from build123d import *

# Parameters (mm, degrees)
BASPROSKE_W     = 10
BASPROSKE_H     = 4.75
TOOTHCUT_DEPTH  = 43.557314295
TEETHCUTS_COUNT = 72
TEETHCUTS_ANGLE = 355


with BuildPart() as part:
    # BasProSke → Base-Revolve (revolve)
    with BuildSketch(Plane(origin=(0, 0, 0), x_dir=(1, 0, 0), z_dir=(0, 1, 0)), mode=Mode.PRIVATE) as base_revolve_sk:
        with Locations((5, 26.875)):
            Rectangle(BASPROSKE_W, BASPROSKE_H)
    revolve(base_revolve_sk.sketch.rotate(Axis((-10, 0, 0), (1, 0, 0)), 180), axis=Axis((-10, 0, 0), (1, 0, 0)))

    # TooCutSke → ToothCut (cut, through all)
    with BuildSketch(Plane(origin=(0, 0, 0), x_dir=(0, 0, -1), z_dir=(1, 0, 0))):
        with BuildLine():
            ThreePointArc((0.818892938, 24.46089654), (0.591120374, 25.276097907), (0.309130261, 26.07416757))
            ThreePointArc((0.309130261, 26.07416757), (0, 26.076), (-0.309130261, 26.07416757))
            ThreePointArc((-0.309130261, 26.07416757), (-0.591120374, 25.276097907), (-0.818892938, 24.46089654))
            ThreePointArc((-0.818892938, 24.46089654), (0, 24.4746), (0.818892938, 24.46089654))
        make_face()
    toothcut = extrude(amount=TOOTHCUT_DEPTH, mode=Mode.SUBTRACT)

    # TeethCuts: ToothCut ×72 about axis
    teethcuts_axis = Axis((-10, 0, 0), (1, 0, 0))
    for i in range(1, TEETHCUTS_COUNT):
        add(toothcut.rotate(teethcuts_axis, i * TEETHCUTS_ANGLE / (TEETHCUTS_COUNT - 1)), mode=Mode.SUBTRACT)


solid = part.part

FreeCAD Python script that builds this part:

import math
import FreeCAD as App
import Part
import Sketcher
from FreeCAD import Vector


def add_polygon(sketch, points):
    """Adds a closed chain of lines whose ends are joined by coincident constraints."""
    first, n = sketch.GeometryCount, len(points)
    for a, b in zip(points, points[1:] + points[:1]):
        sketch.addGeometry(Part.LineSegment(App.Vector(*a, 0), App.Vector(*b, 0)), False)
    for i in range(n):
        sketch.addConstraint(Sketcher.Constraint("Coincident", first + i, 2, first + (i + 1) % n, 1))

doc = App.newDocument("Part")
body = doc.addObject("PartDesign::Body", "Body")

# Sketch on XZ plane
sketch1 = body.newObject("Sketcher::SketchObject", "Sketch")
sketch1.AttachmentSupport = (doc.getObject("XZ_Plane"), [""])
sketch1.MapMode = "FlatFace"
add_polygon(sketch1, [(0, -29.25), (0, -24.5), (10, -24.5), (10, -29.25)])  # lines 0-3
sketch1.addConstraint(Sketcher.Constraint("Vertical", 0))
sketch1.addConstraint(Sketcher.Constraint("Horizontal", 1))
sketch1.addConstraint(Sketcher.Constraint("Vertical", 2))
sketch1.addConstraint(Sketcher.Constraint("Horizontal", 3))
sketch1.addConstraint(Sketcher.Constraint("PointOnObject", 0, 2, -2))
sketch1.addConstraint(Sketcher.Constraint("DistanceX", 1, 1, 1, 2, 10.0))
sketch1.addConstraint(Sketcher.Constraint("DistanceY", 0, 1, 0, 2, 4.75))
sketch1.addConstraint(Sketcher.Constraint("DistanceY", 0, 2, -1, 1, 24.5))
revolution = body.newObject("PartDesign::Revolution", "Revolution")
revolution.Profile = sketch1
revolution.ReferenceAxis = (sketch1, ["H_Axis"])
revolution.Angle = 360

# Sketch on YZ plane
sketch2 = body.newObject("Sketcher::SketchObject", "Sketch001")
sketch2.AttachmentSupport = (doc.getObject("YZ_Plane"), [""])
sketch2.MapMode = "FlatFace"
sketch2.addGeometry(Part.ArcOfCircle(Part.Circle(Vector(21.479752, 11.423361, 0), Vector(0, 0, 1), 12.6), math.radians(-76.314118), math.radians(-68.614809)), False)
sketch2.addGeometry(Part.ArcOfCircle(Part.Circle(Vector(0.000004, 0, 0), Vector(0, 0, 1), 26.075996), math.radians(-0.679256), math.radians(0.679256)), False)
sketch2.addGeometry(Part.ArcOfCircle(Part.Circle(Vector(21.479752, -11.423361, 0), Vector(0, 0, 1), 12.6), math.radians(68.614809), math.radians(76.314118)), False)
sketch2.addGeometry(Part.ArcOfCircle(Part.Circle(Vector(-0.000001, 0, 0), Vector(0, 0, 1), 24.474601), math.radians(-1.917411), math.radians(1.917411)), False)
sketch2.addConstraint(Sketcher.Constraint("Coincident", 0, 2, 1, 1))
sketch2.addConstraint(Sketcher.Constraint("Coincident", 1, 2, 2, 1))
sketch2.addConstraint(Sketcher.Constraint("Coincident", 2, 2, 3, 2))
sketch2.addConstraint(Sketcher.Constraint("Coincident", 3, 1, 0, 1))
sketch2.addConstraint(Sketcher.Constraint("Coincident", 1, 3, -1, 1))
sketch2.addConstraint(Sketcher.Constraint("Coincident", 3, 3, -1, 1))
sketch2.addConstraint(Sketcher.Constraint("Equal", 0, 2))
sketch2.addConstraint(Sketcher.Constraint("Symmetric", 0, 3, 2, 3, -1))
sketch2.addConstraint(Sketcher.Constraint("Radius", 0, 12.6))
sketch2.addConstraint(Sketcher.Constraint("Radius", 3, 24.474601))
sketch2.addConstraint(Sketcher.Constraint("Radius", 1, 26.075996))
sketch2.addConstraint(Sketcher.Constraint("DistanceY", -1, 1, 0, 3, 11.423361))
sketch2.addConstraint(Sketcher.Constraint("DistanceY", 0, 2, -1, 1, 0.30913))
pocket1 = body.newObject("PartDesign::Pocket", "Pocket")
pocket1.Profile = sketch2
pocket1.Type = "ThroughAll"
pocket1.Reversed = True
doc.recompute()

polarpattern = body.newObject("PartDesign::PolarPattern", "PolarPattern")
polarpattern.Originals = [pocket1]
polarpattern.Axis = (doc.getObject("X_Axis"), [""])
polarpattern.Angle = 360
polarpattern.Occurrences = 72
body.Tip = polarpattern

doc.recompute()
